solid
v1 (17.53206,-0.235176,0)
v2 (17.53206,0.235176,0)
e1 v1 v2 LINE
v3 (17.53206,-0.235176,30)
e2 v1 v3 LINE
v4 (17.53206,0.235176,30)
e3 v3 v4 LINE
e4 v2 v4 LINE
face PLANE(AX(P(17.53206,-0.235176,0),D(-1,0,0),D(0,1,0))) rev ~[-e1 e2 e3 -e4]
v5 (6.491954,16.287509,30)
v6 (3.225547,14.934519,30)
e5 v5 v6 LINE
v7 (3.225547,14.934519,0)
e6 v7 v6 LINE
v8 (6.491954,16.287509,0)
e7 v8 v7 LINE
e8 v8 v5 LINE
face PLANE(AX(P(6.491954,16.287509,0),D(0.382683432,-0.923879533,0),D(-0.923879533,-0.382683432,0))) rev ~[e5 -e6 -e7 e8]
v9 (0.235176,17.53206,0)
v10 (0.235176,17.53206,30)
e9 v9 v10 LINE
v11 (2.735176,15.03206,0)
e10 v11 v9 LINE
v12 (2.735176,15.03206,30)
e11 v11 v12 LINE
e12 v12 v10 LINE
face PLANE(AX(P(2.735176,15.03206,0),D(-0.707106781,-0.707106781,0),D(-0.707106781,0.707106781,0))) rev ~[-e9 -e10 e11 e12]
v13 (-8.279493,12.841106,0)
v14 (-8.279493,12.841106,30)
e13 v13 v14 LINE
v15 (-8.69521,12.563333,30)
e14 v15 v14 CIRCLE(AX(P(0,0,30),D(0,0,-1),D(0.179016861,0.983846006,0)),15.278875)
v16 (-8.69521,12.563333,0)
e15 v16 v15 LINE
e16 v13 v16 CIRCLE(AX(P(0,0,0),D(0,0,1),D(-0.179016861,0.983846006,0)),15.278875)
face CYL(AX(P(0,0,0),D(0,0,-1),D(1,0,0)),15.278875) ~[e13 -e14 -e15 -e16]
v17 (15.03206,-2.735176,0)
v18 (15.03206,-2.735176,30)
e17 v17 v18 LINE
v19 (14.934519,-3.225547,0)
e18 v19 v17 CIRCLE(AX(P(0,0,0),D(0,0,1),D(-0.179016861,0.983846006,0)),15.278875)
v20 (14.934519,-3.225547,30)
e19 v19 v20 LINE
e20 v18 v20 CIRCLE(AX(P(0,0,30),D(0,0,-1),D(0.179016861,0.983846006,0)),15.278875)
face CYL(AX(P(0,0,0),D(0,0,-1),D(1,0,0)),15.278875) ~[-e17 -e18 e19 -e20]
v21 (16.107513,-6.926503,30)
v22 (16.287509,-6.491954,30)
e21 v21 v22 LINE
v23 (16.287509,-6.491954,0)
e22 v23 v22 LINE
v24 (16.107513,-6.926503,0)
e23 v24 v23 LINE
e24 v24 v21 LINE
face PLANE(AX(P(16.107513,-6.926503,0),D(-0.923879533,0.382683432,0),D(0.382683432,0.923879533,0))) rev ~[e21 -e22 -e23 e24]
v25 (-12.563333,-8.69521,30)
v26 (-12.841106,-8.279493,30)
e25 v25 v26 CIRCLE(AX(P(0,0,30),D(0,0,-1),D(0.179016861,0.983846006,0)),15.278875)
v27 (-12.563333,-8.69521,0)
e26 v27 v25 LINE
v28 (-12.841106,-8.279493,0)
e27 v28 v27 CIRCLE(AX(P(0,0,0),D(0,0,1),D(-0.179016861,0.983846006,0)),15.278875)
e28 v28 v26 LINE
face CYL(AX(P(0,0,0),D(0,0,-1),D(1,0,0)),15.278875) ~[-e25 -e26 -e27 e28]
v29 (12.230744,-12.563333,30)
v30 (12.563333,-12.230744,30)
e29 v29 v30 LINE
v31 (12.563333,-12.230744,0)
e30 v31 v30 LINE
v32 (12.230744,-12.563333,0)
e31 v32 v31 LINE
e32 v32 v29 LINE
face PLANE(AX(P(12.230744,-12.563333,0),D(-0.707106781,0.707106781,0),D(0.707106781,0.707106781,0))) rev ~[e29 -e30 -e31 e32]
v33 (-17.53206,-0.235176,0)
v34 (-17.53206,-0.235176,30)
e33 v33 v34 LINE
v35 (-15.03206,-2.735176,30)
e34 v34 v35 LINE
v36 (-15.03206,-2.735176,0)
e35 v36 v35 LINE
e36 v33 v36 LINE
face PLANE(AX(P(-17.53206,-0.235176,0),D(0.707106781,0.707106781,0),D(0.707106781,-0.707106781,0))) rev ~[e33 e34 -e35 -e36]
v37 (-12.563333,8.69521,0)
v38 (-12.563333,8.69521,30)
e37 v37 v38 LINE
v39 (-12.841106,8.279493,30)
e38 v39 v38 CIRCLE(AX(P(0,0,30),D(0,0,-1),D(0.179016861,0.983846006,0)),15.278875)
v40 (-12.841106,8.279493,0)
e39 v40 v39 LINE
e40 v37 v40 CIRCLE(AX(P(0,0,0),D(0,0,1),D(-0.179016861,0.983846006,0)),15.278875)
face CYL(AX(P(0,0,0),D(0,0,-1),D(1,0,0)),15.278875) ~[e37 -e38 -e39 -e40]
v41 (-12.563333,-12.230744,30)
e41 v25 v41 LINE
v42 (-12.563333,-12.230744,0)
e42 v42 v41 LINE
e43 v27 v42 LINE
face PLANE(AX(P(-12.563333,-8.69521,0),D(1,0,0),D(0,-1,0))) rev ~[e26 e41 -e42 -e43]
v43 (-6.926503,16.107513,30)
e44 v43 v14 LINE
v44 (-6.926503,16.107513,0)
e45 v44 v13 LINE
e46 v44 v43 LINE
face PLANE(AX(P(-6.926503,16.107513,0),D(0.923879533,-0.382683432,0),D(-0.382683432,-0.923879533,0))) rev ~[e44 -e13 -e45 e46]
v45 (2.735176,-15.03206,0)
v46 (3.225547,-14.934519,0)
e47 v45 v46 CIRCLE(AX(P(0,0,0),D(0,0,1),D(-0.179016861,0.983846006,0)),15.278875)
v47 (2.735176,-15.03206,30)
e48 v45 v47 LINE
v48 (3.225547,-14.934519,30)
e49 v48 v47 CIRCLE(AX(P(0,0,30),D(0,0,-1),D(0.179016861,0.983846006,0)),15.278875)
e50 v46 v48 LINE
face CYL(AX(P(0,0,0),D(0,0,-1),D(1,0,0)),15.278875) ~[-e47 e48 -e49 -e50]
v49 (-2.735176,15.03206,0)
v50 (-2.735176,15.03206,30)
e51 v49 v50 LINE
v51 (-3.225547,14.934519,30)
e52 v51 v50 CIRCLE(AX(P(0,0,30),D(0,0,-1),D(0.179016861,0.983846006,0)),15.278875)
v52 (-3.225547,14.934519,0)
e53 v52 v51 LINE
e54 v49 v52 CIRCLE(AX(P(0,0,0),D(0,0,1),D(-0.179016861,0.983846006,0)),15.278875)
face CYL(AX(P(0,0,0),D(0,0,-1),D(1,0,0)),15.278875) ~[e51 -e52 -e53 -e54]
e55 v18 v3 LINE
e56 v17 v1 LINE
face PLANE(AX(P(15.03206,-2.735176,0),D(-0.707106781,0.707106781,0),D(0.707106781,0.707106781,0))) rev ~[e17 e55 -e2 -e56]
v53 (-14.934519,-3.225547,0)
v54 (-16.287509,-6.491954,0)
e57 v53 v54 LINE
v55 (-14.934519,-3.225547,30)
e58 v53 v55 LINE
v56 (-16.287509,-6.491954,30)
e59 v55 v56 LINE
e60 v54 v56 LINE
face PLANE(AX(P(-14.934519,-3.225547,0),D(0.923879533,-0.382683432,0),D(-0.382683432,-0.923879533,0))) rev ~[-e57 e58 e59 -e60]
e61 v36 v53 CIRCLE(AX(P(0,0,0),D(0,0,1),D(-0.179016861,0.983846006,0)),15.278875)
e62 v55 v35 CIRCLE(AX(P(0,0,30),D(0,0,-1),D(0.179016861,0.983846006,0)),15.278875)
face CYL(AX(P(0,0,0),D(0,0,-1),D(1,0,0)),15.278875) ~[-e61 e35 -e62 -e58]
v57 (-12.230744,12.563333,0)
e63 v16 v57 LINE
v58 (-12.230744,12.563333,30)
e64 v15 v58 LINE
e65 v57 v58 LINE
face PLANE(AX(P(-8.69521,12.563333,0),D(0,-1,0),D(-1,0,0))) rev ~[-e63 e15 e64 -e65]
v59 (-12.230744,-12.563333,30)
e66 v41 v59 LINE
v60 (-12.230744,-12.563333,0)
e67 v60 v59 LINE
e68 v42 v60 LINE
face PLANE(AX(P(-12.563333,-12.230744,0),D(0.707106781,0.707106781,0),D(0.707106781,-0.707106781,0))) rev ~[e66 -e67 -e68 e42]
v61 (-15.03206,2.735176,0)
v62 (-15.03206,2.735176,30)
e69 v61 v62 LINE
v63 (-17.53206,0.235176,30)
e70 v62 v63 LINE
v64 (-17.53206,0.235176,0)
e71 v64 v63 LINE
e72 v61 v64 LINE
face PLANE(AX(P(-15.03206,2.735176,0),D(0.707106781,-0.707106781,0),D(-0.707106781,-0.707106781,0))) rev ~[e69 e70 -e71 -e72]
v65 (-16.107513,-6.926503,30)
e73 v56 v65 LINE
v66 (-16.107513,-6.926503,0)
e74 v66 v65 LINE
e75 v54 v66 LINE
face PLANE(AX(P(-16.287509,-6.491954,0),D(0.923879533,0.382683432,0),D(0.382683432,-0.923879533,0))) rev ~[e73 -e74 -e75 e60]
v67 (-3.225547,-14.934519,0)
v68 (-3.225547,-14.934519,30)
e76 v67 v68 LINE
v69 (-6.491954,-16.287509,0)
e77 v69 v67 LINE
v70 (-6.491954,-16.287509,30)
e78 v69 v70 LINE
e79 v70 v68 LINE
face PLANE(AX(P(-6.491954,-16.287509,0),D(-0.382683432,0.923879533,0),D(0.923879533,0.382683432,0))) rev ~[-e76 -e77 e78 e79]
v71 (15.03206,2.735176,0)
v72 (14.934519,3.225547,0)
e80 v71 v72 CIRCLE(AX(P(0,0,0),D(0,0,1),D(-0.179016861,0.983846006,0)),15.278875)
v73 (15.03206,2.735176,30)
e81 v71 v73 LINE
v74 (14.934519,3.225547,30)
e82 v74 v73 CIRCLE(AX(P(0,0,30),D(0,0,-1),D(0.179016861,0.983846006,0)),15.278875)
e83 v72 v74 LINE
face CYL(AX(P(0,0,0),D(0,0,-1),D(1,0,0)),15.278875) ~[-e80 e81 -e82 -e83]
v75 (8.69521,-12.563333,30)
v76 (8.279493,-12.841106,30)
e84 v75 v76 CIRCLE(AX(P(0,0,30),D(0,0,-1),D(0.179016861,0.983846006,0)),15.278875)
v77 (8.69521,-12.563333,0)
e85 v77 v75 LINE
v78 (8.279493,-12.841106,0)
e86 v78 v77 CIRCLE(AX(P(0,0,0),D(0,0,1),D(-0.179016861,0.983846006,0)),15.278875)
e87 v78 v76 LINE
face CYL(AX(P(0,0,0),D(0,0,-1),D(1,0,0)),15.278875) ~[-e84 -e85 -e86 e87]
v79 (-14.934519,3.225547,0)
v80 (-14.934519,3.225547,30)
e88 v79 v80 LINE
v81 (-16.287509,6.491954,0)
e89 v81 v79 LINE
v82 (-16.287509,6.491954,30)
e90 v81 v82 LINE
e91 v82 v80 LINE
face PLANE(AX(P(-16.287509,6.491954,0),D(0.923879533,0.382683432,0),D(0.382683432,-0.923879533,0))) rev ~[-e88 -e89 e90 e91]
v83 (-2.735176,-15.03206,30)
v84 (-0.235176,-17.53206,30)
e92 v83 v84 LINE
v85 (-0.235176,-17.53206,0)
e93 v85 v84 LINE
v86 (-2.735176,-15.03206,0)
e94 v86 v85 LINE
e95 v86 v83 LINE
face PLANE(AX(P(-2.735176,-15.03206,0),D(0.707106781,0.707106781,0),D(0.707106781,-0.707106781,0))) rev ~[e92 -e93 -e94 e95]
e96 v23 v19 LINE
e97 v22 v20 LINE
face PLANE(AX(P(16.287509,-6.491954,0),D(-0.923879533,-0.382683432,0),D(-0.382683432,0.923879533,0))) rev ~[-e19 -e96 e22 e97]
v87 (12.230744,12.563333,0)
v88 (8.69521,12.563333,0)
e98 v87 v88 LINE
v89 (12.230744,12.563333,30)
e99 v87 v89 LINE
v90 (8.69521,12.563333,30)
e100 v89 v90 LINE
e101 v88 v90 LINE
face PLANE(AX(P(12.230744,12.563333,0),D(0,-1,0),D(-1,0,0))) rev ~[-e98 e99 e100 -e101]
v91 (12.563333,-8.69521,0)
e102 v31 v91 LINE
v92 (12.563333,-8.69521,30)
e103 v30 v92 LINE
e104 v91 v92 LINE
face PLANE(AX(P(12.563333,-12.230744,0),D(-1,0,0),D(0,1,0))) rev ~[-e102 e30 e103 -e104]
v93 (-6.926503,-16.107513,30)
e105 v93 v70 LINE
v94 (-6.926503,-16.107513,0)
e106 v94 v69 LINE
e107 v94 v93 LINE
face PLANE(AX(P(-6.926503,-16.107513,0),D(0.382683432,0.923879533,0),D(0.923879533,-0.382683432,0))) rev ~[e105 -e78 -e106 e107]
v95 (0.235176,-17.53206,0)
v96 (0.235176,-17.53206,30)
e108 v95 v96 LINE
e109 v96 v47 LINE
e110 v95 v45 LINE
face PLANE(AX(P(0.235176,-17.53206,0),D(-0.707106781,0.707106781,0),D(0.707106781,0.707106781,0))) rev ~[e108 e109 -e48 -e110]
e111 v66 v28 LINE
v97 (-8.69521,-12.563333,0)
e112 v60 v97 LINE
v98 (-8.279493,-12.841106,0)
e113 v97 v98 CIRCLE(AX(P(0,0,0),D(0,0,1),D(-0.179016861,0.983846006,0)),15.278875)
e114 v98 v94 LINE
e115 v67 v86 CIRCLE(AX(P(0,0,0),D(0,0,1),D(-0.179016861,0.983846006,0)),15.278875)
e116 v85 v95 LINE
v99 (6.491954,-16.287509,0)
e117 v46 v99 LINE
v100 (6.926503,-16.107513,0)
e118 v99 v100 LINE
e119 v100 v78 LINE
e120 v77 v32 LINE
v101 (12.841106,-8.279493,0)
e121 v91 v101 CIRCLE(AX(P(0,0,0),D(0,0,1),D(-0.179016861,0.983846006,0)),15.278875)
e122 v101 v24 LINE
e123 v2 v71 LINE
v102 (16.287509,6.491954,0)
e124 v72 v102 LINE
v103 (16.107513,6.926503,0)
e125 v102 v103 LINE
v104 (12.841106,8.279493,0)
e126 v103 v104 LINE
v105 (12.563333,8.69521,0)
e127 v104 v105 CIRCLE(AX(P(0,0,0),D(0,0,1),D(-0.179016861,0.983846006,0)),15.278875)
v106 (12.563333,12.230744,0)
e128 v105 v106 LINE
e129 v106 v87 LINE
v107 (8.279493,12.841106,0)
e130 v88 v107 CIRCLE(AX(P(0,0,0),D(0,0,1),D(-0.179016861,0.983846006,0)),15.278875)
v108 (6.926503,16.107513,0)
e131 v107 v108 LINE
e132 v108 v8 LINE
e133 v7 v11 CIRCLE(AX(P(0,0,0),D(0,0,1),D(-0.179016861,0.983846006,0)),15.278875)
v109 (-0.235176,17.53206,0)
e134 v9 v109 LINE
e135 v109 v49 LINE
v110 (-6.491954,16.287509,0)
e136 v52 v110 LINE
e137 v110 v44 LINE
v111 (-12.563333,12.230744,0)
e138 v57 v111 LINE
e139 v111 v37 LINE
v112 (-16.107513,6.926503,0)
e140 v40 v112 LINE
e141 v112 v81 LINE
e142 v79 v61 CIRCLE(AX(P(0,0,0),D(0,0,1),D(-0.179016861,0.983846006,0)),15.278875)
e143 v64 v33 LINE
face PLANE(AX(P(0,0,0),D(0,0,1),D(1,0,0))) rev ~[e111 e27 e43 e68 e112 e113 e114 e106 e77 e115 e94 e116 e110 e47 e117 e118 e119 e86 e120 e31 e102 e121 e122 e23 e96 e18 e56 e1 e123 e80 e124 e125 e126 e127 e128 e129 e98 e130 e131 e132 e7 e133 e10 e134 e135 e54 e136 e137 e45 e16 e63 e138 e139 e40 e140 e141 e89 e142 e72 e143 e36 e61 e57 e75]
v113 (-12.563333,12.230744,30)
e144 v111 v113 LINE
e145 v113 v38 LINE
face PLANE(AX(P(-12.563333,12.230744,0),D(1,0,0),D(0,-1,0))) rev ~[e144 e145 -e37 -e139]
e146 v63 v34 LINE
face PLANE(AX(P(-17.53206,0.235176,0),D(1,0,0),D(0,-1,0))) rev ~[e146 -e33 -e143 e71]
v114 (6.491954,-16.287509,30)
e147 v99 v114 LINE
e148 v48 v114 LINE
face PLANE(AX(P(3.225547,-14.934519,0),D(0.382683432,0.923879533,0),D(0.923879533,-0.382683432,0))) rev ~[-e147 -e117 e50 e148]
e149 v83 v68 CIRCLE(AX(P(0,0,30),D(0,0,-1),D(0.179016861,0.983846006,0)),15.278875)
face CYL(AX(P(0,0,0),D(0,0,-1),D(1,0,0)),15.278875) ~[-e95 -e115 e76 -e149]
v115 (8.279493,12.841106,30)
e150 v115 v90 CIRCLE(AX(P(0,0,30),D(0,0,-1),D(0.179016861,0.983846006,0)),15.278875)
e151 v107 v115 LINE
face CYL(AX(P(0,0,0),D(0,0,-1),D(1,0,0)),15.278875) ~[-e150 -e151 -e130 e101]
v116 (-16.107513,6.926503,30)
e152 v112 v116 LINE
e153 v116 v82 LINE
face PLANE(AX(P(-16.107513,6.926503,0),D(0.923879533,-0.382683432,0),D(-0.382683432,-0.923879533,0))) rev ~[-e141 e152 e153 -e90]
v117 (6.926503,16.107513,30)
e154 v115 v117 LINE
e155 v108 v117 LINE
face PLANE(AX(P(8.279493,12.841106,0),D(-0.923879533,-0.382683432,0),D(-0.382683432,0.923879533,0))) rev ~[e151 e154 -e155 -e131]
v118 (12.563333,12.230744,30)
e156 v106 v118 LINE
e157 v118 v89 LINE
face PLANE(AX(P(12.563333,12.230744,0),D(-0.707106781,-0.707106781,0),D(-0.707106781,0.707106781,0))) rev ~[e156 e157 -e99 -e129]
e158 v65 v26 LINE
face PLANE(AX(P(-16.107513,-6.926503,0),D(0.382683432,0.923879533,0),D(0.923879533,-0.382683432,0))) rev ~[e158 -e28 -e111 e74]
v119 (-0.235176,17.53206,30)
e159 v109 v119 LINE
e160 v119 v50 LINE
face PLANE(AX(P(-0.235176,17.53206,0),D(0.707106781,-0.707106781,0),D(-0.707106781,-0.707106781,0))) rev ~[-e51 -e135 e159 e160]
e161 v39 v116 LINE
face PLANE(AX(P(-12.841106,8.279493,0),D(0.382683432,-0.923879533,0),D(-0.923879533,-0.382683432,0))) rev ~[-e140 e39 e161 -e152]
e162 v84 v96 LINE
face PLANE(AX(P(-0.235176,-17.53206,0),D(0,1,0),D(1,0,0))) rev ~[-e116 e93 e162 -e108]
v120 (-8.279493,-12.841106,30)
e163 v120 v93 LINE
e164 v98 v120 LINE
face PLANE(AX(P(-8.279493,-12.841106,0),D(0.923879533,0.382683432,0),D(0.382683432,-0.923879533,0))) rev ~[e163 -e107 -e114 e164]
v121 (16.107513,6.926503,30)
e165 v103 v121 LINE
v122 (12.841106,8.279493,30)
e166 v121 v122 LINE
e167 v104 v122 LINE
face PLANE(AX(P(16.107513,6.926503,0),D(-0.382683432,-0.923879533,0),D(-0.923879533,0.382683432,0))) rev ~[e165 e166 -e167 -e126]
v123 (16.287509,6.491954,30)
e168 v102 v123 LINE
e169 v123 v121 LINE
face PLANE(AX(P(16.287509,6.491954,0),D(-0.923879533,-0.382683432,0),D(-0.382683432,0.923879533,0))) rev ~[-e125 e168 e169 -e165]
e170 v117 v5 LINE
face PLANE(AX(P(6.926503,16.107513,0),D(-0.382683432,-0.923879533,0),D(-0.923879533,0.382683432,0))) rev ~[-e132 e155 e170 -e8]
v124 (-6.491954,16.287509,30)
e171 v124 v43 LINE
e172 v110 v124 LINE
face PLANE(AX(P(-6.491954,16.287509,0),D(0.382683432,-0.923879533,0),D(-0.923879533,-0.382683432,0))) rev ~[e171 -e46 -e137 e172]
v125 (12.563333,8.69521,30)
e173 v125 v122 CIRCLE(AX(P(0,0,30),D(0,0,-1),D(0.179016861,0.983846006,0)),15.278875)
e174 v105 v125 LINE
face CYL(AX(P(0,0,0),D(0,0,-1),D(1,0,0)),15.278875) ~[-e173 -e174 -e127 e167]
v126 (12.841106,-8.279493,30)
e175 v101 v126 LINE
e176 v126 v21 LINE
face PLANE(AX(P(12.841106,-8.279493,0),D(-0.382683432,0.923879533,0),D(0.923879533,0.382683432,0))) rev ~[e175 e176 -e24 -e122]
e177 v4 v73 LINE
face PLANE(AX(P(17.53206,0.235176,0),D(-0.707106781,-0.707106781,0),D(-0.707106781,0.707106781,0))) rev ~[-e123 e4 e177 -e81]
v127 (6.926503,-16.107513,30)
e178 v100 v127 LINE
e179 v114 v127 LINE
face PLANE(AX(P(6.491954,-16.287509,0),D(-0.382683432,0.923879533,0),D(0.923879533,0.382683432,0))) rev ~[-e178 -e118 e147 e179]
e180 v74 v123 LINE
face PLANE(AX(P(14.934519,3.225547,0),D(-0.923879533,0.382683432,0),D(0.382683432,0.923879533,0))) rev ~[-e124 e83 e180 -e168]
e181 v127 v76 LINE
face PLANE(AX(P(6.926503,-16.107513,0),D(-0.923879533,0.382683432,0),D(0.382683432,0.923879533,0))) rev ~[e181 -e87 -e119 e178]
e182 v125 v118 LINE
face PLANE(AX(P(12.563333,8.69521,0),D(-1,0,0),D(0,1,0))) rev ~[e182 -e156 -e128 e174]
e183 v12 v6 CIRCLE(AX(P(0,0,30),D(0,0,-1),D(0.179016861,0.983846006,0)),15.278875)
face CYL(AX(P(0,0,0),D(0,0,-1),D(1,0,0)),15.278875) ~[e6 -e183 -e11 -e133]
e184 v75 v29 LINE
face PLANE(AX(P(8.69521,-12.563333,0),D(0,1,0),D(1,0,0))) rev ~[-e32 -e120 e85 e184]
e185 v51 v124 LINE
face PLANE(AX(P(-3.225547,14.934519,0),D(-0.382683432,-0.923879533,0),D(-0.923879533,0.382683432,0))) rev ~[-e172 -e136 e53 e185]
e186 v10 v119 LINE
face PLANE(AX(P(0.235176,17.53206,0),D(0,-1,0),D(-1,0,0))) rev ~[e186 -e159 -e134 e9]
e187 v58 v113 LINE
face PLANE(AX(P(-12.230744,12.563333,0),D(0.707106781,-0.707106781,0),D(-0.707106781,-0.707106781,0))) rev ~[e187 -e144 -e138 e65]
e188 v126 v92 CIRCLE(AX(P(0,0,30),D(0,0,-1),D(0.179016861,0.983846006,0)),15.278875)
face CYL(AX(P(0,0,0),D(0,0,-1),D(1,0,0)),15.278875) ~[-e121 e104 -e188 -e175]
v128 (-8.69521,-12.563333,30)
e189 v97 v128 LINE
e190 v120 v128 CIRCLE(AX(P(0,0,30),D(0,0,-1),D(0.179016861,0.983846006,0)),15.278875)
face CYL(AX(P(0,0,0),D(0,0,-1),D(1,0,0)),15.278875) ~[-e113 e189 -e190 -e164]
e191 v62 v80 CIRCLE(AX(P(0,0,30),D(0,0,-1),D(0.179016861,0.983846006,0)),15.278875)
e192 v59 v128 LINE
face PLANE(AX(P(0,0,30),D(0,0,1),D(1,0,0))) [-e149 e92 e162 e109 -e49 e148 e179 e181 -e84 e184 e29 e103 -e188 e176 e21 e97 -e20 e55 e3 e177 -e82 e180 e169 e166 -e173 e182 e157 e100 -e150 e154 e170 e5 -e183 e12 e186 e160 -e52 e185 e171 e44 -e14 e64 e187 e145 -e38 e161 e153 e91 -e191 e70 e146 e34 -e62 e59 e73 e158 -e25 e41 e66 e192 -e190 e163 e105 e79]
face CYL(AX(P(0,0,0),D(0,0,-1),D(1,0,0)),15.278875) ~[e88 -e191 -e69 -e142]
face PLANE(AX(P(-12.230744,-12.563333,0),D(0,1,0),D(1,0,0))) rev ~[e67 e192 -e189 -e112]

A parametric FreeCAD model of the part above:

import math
import FreeCAD as App
import Part
import Sketcher

V = App.Vector
Q = App.Units.Quantity

doc = App.newDocument("Part")
body = doc.addObject("PartDesign::Body", "Body")

# Sketch on XY plane
sketch1 = body.newObject("Sketcher::SketchObject", "Sketch")
sketch1.AttachmentSupport = (doc.getObject("XY_Plane"), [""])
sketch1.MapMode = "FlatFace"
sketch1.addGeometry(Part.Circle(V(0, 0, 0), V(0, 0, 1), 15.278875), False)
sketch1.addConstraint(Sketcher.Constraint("Coincident", 0, 3, -1, 1))
sketch1.addConstraint(Sketcher.Constraint("Diameter", 0, Q("30.557749 mm")))
pad1 = body.newObject("PartDesign::Pad", "Pad")
pad1.Profile = sketch1
pad1.Length = 30

# Sketch on XY plane
sketch2 = body.newObject("Sketcher::SketchObject", "Sketch001")
sketch2.AttachmentSupport = (doc.getObject("XY_Plane"), [""])
sketch2.MapMode = "FlatFace"
sketch2.addGeometry(Part.LineSegment(V(0.235176, 17.53206, 0), V(2.735176, 15.03206, 0)), False)
sketch2.addGeometry(Part.ArcOfCircle(Part.Circle(V(0, 0, 0), V(0, 0, 1), 15.278875), math.radians(79.6875), math.radians(100.3125)), False)
sketch2.addGeometry(Part.LineSegment(V(-2.735176, 15.03206, 0), V(-0.235176, 17.53206, 0)), False)
sketch2.addGeometry(Part.LineSegment(V(-0.235176, 17.53206, 0), V(0.235176, 17.53206, 0)), False)
sketch2.addConstraint(Sketcher.Constraint("Coincident", 0, 2, 1, 1))
sketch2.addConstraint(Sketcher.Constraint("Coincident", 1, 2, 2, 1))
sketch2.addConstraint(Sketcher.Constraint("Coincident", 2, 2, 3, 1))
sketch2.addConstraint(Sketcher.Constraint("Coincident", 3, 2, 0, 1))
sketch2.addConstraint(Sketcher.Constraint("Horizontal", 3))
sketch2.addConstraint(Sketcher.Constraint("Coincident", 1, 3, -1, 1))
sketch2.addConstraint(Sketcher.Constraint("Perpendicular", 0, 2))
sketch2.addConstraint(Sketcher.Constraint("Horizontal", 0, 2, 1, 2))
sketch2.addConstraint(Sketcher.Constraint("Equal", 0, 2))
sketch2.addConstraint(Sketcher.Constraint("DistanceX", 1, 2, 2, 2, Q("2.5 mm")))
sketch2.addConstraint(Sketcher.Constraint("Radius", 1, Q("15.278875 mm")))
sketch2.addConstraint(Sketcher.Constraint("DistanceX", 3, 1, 3, 2, Q("0.470352 mm")))
pad2 = body.newObject("PartDesign::Pad", "Pad001")
pad2.Profile = sketch2
pad2.Length = 30
doc.recompute()

polarpattern = body.newObject("PartDesign::PolarPattern", "PolarPattern")
polarpattern.Originals = [pad2]
polarpattern.Axis = (doc.getObject("Z_Axis"), [""])
polarpattern.Angle = 360
polarpattern.Occurrences = 16
body.Tip = polarpattern

doc.recompute()
